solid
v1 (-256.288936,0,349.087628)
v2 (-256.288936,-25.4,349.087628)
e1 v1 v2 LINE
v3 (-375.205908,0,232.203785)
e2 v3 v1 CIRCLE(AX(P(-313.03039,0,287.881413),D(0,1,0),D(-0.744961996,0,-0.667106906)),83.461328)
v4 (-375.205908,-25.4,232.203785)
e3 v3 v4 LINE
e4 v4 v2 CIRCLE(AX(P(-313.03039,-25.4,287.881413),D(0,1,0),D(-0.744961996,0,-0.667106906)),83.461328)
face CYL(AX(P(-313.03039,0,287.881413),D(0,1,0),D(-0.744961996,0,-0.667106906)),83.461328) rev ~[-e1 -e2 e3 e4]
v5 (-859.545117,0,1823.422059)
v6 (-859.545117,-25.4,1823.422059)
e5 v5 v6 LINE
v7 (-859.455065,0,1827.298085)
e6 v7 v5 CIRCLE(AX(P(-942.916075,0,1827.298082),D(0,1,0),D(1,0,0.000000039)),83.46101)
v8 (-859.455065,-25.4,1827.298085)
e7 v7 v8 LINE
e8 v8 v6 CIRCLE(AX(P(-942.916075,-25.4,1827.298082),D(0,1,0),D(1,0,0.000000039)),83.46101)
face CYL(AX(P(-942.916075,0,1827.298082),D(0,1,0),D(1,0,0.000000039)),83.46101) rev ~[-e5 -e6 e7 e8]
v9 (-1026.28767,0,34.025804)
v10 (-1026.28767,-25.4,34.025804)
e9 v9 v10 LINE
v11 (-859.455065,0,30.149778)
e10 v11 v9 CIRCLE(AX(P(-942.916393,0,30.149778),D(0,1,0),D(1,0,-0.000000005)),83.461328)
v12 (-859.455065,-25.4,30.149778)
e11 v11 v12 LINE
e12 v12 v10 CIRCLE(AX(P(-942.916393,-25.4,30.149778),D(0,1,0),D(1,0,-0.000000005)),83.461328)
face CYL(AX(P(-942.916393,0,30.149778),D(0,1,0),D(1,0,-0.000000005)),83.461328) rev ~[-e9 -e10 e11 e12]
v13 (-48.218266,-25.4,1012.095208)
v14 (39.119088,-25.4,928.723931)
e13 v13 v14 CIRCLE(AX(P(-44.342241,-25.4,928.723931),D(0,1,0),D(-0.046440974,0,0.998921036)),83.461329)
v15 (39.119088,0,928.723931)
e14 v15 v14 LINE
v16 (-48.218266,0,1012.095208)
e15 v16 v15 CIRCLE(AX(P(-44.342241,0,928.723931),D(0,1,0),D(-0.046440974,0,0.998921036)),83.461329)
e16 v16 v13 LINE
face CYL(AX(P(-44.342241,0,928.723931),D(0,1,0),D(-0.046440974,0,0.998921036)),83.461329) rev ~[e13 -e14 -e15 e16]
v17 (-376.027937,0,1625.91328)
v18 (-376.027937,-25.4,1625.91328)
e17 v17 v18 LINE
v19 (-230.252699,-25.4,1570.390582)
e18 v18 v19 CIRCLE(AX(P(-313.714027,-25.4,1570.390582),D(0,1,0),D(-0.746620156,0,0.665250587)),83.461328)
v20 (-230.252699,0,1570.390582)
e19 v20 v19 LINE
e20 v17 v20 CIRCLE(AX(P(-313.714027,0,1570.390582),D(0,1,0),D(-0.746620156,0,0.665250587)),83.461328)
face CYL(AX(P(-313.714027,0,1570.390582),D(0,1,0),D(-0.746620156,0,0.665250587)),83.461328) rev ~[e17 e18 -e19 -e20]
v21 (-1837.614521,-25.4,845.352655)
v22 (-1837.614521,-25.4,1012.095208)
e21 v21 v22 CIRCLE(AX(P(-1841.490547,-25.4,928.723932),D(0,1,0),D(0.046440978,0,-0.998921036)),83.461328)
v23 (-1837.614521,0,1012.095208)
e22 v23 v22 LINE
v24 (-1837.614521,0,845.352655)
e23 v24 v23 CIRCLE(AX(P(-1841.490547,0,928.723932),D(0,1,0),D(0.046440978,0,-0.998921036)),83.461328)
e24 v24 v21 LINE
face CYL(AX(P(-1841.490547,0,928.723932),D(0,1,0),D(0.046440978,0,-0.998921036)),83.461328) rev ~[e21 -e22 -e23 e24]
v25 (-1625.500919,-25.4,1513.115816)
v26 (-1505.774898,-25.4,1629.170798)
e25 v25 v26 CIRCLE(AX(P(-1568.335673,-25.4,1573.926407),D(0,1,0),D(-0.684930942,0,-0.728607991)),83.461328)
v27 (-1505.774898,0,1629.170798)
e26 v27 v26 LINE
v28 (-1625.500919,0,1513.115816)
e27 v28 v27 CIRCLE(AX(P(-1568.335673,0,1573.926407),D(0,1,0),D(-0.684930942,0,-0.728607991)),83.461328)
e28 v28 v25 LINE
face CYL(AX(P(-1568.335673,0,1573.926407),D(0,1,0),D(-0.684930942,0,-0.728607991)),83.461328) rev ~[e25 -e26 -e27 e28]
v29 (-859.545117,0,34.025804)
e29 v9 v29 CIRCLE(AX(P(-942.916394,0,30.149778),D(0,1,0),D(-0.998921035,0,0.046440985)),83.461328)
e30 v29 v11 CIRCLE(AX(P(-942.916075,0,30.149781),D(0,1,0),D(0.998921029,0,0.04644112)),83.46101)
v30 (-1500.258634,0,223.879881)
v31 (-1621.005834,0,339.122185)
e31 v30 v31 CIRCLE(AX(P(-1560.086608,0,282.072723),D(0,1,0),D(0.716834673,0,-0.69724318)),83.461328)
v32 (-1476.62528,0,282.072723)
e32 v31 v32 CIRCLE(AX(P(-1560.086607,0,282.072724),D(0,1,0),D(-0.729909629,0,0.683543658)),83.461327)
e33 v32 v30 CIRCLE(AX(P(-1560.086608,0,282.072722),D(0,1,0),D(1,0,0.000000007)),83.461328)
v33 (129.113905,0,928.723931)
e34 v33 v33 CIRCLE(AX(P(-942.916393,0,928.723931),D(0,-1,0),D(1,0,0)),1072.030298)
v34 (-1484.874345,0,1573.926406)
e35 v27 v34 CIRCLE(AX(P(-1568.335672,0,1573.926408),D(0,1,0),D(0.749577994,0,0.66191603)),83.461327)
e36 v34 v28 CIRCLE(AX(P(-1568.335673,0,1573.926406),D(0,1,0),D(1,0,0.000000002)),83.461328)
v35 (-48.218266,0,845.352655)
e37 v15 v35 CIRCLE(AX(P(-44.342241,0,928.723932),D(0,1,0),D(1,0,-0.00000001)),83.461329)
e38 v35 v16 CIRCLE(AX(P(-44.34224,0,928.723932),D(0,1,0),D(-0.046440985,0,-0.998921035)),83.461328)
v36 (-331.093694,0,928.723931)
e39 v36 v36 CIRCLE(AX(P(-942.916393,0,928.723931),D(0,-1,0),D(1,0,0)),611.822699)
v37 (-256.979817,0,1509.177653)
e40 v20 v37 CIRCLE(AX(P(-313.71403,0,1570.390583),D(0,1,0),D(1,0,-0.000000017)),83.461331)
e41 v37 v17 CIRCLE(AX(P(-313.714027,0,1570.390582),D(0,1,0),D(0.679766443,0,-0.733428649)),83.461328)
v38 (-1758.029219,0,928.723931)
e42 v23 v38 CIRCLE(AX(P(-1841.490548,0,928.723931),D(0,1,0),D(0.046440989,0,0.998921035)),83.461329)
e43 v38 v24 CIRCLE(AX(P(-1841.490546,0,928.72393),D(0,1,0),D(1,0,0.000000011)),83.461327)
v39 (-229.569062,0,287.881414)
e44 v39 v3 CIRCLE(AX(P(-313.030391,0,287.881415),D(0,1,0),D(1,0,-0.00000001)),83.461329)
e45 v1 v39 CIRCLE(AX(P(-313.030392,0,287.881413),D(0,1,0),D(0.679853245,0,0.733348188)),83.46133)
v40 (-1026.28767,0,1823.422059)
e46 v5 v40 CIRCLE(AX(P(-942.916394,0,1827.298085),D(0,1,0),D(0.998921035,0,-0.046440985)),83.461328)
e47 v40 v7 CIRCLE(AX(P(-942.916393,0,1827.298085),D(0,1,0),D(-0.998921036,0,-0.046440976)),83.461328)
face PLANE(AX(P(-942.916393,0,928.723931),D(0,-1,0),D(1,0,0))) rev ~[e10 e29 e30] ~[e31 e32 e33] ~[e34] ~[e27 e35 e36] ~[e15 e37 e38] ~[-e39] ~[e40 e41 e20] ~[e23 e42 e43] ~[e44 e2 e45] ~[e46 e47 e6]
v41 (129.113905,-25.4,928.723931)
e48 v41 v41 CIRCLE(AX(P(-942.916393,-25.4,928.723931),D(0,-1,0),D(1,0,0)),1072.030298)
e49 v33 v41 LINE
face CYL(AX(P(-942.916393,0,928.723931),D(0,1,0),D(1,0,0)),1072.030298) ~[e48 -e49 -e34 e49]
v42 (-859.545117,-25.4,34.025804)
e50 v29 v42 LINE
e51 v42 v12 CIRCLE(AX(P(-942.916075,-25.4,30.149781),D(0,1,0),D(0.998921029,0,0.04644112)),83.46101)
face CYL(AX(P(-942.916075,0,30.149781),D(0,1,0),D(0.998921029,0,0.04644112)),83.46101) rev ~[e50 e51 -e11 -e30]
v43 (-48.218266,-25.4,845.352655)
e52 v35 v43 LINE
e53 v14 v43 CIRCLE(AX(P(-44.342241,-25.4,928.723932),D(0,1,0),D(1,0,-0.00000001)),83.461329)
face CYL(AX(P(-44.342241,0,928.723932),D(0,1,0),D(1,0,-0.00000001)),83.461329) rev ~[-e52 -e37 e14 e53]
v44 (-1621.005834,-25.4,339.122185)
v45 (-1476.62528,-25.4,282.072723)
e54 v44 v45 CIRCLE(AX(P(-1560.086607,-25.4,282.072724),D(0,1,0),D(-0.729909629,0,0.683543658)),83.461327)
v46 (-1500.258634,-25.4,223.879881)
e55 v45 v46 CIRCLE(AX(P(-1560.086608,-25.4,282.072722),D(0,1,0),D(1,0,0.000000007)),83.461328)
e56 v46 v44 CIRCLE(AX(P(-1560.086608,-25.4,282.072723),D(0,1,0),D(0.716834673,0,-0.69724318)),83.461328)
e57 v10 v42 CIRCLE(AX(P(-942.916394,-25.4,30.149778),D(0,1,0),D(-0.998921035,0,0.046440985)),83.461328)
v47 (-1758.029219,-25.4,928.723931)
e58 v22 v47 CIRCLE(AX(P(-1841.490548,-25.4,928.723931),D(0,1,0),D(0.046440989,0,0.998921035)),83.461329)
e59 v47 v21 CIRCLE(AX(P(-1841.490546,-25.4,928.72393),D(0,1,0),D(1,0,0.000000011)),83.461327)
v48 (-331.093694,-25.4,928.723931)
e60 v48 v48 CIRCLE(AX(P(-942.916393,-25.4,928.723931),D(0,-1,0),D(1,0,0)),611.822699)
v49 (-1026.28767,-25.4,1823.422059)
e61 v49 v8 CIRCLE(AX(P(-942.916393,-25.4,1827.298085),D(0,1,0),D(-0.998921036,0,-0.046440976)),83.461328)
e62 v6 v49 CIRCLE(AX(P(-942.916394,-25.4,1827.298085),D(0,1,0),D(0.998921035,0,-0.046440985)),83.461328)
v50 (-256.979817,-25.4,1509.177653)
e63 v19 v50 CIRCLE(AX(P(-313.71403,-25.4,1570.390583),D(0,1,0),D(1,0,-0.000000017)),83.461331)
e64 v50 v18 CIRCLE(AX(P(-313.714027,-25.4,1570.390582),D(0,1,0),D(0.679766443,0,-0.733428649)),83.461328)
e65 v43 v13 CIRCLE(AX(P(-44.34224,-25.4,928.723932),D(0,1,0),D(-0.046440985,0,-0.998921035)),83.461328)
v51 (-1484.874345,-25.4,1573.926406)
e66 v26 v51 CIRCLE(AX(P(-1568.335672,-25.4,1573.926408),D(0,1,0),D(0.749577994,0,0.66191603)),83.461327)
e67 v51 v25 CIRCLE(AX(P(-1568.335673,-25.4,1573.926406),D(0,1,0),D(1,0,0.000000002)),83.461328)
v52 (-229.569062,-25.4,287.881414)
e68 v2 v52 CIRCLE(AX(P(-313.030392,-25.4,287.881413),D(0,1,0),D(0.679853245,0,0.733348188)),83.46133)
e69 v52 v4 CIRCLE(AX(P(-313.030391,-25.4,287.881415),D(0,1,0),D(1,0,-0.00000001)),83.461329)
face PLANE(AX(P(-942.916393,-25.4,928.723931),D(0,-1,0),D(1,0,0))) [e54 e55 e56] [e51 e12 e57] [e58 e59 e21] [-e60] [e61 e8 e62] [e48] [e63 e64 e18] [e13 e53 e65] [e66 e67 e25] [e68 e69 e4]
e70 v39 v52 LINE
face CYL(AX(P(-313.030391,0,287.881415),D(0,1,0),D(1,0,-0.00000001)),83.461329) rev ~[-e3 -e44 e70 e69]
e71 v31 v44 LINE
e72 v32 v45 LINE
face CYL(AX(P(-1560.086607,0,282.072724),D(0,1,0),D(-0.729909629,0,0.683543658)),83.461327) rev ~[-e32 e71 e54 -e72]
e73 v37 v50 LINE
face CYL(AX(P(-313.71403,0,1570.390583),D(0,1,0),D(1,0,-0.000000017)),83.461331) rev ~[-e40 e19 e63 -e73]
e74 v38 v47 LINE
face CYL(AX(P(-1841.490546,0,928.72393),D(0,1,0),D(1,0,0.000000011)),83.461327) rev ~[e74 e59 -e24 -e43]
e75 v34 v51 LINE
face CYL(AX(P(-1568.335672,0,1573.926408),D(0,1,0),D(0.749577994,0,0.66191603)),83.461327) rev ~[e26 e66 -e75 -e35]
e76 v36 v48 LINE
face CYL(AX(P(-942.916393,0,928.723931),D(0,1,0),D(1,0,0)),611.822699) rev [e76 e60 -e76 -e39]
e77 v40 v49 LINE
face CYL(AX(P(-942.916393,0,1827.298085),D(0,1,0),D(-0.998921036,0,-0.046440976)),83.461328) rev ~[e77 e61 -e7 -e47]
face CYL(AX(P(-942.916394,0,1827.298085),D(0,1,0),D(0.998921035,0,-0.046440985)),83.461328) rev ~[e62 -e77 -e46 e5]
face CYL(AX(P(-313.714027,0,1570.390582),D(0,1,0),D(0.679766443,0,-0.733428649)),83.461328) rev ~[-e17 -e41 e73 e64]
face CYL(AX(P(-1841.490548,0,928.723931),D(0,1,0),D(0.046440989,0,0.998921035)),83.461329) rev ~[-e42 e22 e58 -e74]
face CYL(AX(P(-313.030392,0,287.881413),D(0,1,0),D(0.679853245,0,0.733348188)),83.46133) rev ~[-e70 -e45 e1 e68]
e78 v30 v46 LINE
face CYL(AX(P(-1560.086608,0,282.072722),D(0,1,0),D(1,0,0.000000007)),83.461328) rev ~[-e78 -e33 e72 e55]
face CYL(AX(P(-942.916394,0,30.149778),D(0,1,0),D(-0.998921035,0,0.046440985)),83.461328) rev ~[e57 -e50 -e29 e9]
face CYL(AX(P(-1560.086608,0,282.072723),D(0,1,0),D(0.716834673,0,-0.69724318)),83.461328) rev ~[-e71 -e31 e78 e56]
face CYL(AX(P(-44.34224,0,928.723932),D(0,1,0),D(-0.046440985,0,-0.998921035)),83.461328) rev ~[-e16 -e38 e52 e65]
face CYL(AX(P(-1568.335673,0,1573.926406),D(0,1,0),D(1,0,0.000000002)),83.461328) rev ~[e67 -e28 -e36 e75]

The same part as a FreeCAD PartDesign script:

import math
import FreeCAD as App
import Part
import Sketcher

V = App.Vector
Q = App.Units.Quantity

doc = App.newDocument("Part")
body = doc.addObject("PartDesign::Body", "Body")

# Sketch on XZ plane
sketch1 = body.newObject("Sketcher::SketchObject", "Sketch")
sketch1.AttachmentSupport = (doc.getObject("XZ_Plane"), [""])
sketch1.MapMode = "FlatFace"
sketch1.addGeometry([
    Part.Circle(V(-942.916393, 928.723931, 0), V(0, 0, 1), 1072.030298),  # 0
    Part.ArcOfCircle(Part.Circle(V(-1560.086608, 282.072723, 0), V(0, 0, 1), 83.461328), math.radians(136.878818), math.radians(315.79376)),  # 1
    Part.ArcOfCircle(Part.Circle(V(-1560.086607, 282.072724, 0), V(0, 0, 1), 83.461327), math.radians(-0.000001), math.radians(136.878819)),  # 2
    Part.ArcOfCircle(Part.Circle(V(-1560.086608, 282.072722, 0), V(0, 0, 1), 83.461328), math.radians(-44.20624), math.radians(0)),  # 3
    Part.ArcOfCircle(Part.Circle(V(-942.916393, 30.149778, 0), V(0, 0, 1), 83.461328), math.radians(177.338171), math.radians(360)),  # 4
    Part.ArcOfCircle(Part.Circle(V(-942.916394, 30.149778, 0), V(0, 0, 1), 83.461328), math.radians(2.66183), math.radians(177.33817)),  # 5
    Part.ArcOfCircle(Part.Circle(V(-942.916075, 30.149781, 0), V(0, 0, 1), 83.46101), math.radians(-0.000002), math.radians(2.661838)),  # 6
    Part.ArcOfCircle(Part.Circle(V(-313.030391, 287.881415, 0), V(0, 0, 1), 83.461329), math.radians(-138.155834), math.radians(-0.000001)),  # 7
    Part.ArcOfCircle(Part.Circle(V(-313.03039, 287.881413, 0), V(0, 0, 1), 83.461328), math.radians(47.167824), math.radians(221.844165)),  # 8
    Part.ArcOfCircle(Part.Circle(V(-313.030392, 287.881413, 0), V(0, 0, 1), 83.46133), math.radians(0.000001), math.radians(47.167824)),  # 9
    Part.Circle(V(-942.916393, 928.723931, 0), V(0, 0, 1), 611.822699),  # 10
    Part.ArcOfCircle(Part.Circle(V(-44.342241, 928.723932, 0), V(0, 0, 1), 83.461329), math.radians(-92.661829), math.radians(-0.000001)),  # 11
    Part.ArcOfCircle(Part.Circle(V(-44.34224, 928.723932, 0), V(0, 0, 1), 83.461328), math.radians(92.66183), math.radians(267.33817)),  # 12
    Part.ArcOfCircle(Part.Circle(V(-44.342241, 928.723931, 0), V(0, 0, 1), 83.461329), math.radians(0), math.radians(92.661829)),  # 13
    Part.ArcOfCircle(Part.Circle(V(-1841.490547, 928.723932, 0), V(0, 0, 1), 83.461328), math.radians(87.338171), math.radians(272.661829)),  # 14
    Part.ArcOfCircle(Part.Circle(V(-1841.490548, 928.723931, 0), V(0, 0, 1), 83.461329), math.radians(0), math.radians(87.33817)),  # 15
    Part.ArcOfCircle(Part.Circle(V(-1841.490546, 928.72393, 0), V(0, 0, 1), 83.461327), math.radians(-87.338171), math.radians(0.000001)),  # 16
    Part.ArcOfCircle(Part.Circle(V(-1568.335673, 1573.926407, 0), V(0, 0, 1), 83.461328), math.radians(41.446165), math.radians(226.769824)),  # 17
    Part.ArcOfCircle(Part.Circle(V(-1568.335672, 1573.926408, 0), V(0, 0, 1), 83.461327), math.radians(-0.000001), math.radians(41.446164)),  # 18
    Part.ArcOfCircle(Part.Circle(V(-1568.335673, 1573.926406, 0), V(0, 0, 1), 83.461328), math.radians(-133.230177), math.radians(0)),  # 19
    Part.ArcOfCircle(Part.Circle(V(-942.916075, 1827.298082, 0), V(0, 0, 1), 83.46101), math.radians(-2.661838), math.radians(0.000002)),  # 20
    Part.ArcOfCircle(Part.Circle(V(-942.916394, 1827.298085, 0), V(0, 0, 1), 83.461328), math.radians(-177.33817), math.radians(-2.66183)),  # 21
    Part.ArcOfCircle(Part.Circle(V(-942.916393, 1827.298085, 0), V(0, 0, 1), 83.461328), math.radians(0), math.radians(182.661829)),  # 22
    Part.ArcOfCircle(Part.Circle(V(-313.71403, 1570.390583, 0), V(0, 0, 1), 83.461331), math.radians(-47.174604), math.radians(-0.000001)),  # 23
    Part.ArcOfCircle(Part.Circle(V(-313.714027, 1570.390582, 0), V(0, 0, 1), 83.461328), math.radians(138.298447), math.radians(312.825395)),  # 24
    Part.ArcOfCircle(Part.Circle(V(-313.714027, 1570.390582, 0), V(0, 0, 1), 83.461328), math.radians(0), math.radians(138.298447)),  # 25
], False)
sketch1.addConstraint([
    Sketcher.Constraint("Coincident", 1, 1, 2, 2),
    Sketcher.Constraint("Coincident", 2, 1, 3, 2),
    Sketcher.Constraint("Coincident", 3, 1, 1, 2),
    Sketcher.Constraint("Coincident", 4, 1, 5, 2),
    Sketcher.Constraint("Coincident", 5, 1, 6, 2),
    Sketcher.Constraint("Coincident", 6, 1, 4, 2),
    Sketcher.Constraint("Coincident", 7, 1, 8, 2),
    Sketcher.Constraint("Coincident", 8, 1, 9, 2),
    Sketcher.Constraint("Coincident", 9, 1, 7, 2),
    Sketcher.Constraint("Coincident", 11, 1, 12, 2),
    Sketcher.Constraint("Coincident", 12, 1, 13, 2),
    Sketcher.Constraint("Coincident", 13, 1, 11, 2),
    Sketcher.Constraint("Coincident", 14, 1, 15, 2),
    Sketcher.Constraint("Coincident", 15, 1, 16, 2),
    Sketcher.Constraint("Coincident", 16, 1, 14, 2),
    Sketcher.Constraint("Coincident", 17, 1, 18, 2),
    Sketcher.Constraint("Coincident", 18, 1, 19, 2),
    Sketcher.Constraint("Coincident", 19, 1, 17, 2),
    Sketcher.Constraint("Coincident", 20, 1, 21, 2),
    Sketcher.Constraint("Coincident", 21, 1, 22, 2),
    Sketcher.Constraint("Coincident", 22, 1, 20, 2),
    Sketcher.Constraint("Coincident", 23, 1, 24, 2),
    Sketcher.Constraint("Coincident", 24, 1, 25, 2),
    Sketcher.Constraint("Coincident", 25, 1, 23, 2),
    Sketcher.Constraint("Coincident", 2, 3, 1, 3),
    Sketcher.Constraint("Coincident", 5, 3, 4, 3),
    Sketcher.Constraint("Coincident", 8, 3, 7, 3),
    Sketcher.Constraint("Coincident", 10, 3, 0, 3),
    Sketcher.Constraint("Coincident", 12, 3, 11, 3),
    Sketcher.Constraint("Coincident", 15, 3, 14, 3),
    Sketcher.Constraint("Coincident", 18, 3, 17, 3),
    Sketcher.Constraint("Coincident", 22, 3, 21, 3),
    Sketcher.Constraint("Coincident", 24, 3, 23, 3),
    Sketcher.Constraint("Radius", 1, Q("83.461328 mm")),
    Sketcher.Constraint("Radius", 4, Q("83.461328 mm")),
    Sketcher.Constraint("Radius", 6, Q("83.46101 mm")),
    Sketcher.Constraint("Radius", 7, Q("83.461329 mm")),
    Sketcher.Constraint("Radius", 9, Q("83.46133 mm")),
    Sketcher.Constraint("Radius", 11, Q("83.461329 mm")),
    Sketcher.Constraint("Radius", 13, Q("83.461329 mm")),
    Sketcher.Constraint("Radius", 14, Q("83.461328 mm")),
    Sketcher.Constraint("Radius", 17, Q("83.461328 mm")),
    Sketcher.Constraint("Radius", 20, Q("83.46101 mm")),
    Sketcher.Constraint("Radius", 21, Q("83.461328 mm")),
    Sketcher.Constraint("Radius", 23, Q("83.461331 mm")),
    Sketcher.Constraint("Radius", 25, Q("83.461328 mm")),
    Sketcher.Constraint("Diameter", 0, Q("2144.060596 mm")),
    Sketcher.Constraint("Diameter", 10, Q("1223.645398 mm")),
    Sketcher.Constraint("Radius", 3, Q("83.461328 mm")),
    Sketcher.Constraint("Radius", 16, Q("83.461327 mm")),
    Sketcher.Constraint("Radius", 19, Q("83.461328 mm")),
    Sketcher.Constraint("DistanceX", 17, 1, -1, 1, Q("1505.774898 mm")),
    Sketcher.Constraint("DistanceX", 25, 1, -1, 1, Q("230.252699 mm")),
    Sketcher.Constraint("DistanceX", 4, 3, 9, 3, Q("629.886001 mm")),
    Sketcher.Constraint("DistanceY", 23, 3, 20, 3, Q("256.907498 mm")),
    Sketcher.Constraint("DistanceX", 1, 1, 3, 1, Q("120.7472 mm")),
    Sketcher.Constraint("DistanceY", 14, 1, 17, 3, Q("561.831199 mm")),
    Sketcher.Constraint("DistanceX", 14, 1, 15, 1, Q("79.585302 mm")),
    Sketcher.Constraint("DistanceX", 16, 1, 15, 1, Q("79.585302 mm")),
    Sketcher.Constraint("DistanceY", -1, 1, 0, 3, Q("928.723931 mm")),
    Sketcher.Constraint("DistanceY", -1, 1, 4, 3, Q("30.149778 mm")),
    Sketcher.Constraint("DistanceX", 7, 3, -1, 1, Q("313.030391 mm")),
    Sketcher.Constraint("DistanceX", 11, 3, -1, 1, Q("44.342241 mm")),
    Sketcher.Constraint("DistanceY", -1, 1, 11, 3, Q("928.723932 mm")),
    Sketcher.Constraint("DistanceY", -1, 1, 14, 3, Q("928.723932 mm")),
    Sketcher.Constraint("DistanceY", -1, 1, 20, 3, Q("1827.298082 mm")),
    Sketcher.Constraint("DistanceX", 2, 1, -1, 1, Q("1476.62528 mm")),
    Sketcher.Constraint("DistanceY", -1, 1, 3, 1, Q("223.879881 mm")),
    Sketcher.Constraint("DistanceX", 4, 1, -1, 1, Q("1026.28767 mm")),
    Sketcher.Constraint("DistanceY", -1, 1, 6, 1, Q("30.149778 mm")),
    Sketcher.Constraint("DistanceY", -1, 1, 8, 1, Q("349.087628 mm")),
    Sketcher.Constraint("DistanceY", -1, 1, 13, 1, Q("928.723931 mm")),
    Sketcher.Constraint("DistanceX", 14, 1, -1, 1, Q("1837.614521 mm")),
    Sketcher.Constraint("DistanceY", -1, 1, 15, 1, Q("928.723931 mm")),
    Sketcher.Constraint("DistanceX", 19, 1, -1, 1, Q("1625.500919 mm")),
    Sketcher.Constraint("DistanceY", -1, 1, 20, 1, Q("1823.422059 mm")),
    Sketcher.Constraint("DistanceX", 21, 1, -1, 1, Q("1026.28767 mm")),
    Sketcher.Constraint("DistanceY", -1, 1, 21, 1, Q("1823.422059 mm")),
    Sketcher.Constraint("DistanceY", -1, 1, 24, 1, Q("1625.91328 mm")),
    Sketcher.Constraint("DistanceY", -1, 1, 25, 1, Q("1570.390582 mm")),
    Sketcher.Constraint("DistanceY", 1, 3, 0, 3, Q("646.651208 mm")),
    Sketcher.Constraint("DistanceY", 2, 3, 7, 3, Q("5.808691 mm")),
    Sketcher.Constraint("DistanceX", 10, 3, 6, 3, Q("0.000318 mm")),
    Sketcher.Constraint("DistanceX", 17, 3, 0, 3, Q("625.41928 mm")),
    Sketcher.Constraint("DistanceY", 4, 1, 2, 1, Q("248.046919 mm")),
    Sketcher.Constraint("DistanceY", 5, 1, 9, 3, Q("253.855609 mm")),
    Sketcher.Constraint("DistanceY", 7, 1, 8, 3, Q("55.677628 mm")),
    Sketcher.Constraint("DistanceY", 7, 1, 9, 1, Q("55.677629 mm")),
    Sketcher.Constraint("DistanceX", 8, 1, 11, 1, Q("208.07067 mm")),
    Sketcher.Constraint("DistanceX", 24, 3, 12, 1, Q("265.495761 mm")),
    Sketcher.Constraint("DistanceY", 18, 1, 17, 1, Q("55.244392 mm")),
    Sketcher.Constraint("DistanceX", 24, 3, 23, 1, Q("56.73421 mm")),
    Sketcher.Constraint("DistanceY", -1, 1, 22, 1, Q("1827.298085 mm")),
])
pad1 = body.newObject("PartDesign::Pad", "Pad")
pad1.Profile = sketch1
pad1.Length = Q("1 in")

doc.recompute()
